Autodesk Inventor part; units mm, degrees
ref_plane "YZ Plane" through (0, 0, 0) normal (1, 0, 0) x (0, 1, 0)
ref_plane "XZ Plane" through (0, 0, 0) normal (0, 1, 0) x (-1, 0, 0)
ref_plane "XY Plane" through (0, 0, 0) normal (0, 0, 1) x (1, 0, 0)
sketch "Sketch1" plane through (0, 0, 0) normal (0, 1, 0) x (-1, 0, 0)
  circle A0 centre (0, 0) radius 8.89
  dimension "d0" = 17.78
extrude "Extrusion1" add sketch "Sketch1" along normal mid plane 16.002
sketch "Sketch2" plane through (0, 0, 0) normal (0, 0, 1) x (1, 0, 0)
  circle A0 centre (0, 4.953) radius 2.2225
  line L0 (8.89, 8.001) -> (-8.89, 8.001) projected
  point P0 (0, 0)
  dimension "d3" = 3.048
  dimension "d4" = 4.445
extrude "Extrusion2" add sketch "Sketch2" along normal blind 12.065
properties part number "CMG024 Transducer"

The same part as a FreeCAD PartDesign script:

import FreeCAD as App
import Part
import Sketcher
from FreeCAD import Vector
Q = App.Units.Quantity

doc = App.newDocument("Part")
params = doc.addObject("Spreadsheet::Sheet", "Params")
for row, (alias, value) in enumerate([
    ("sketch1_diameter", "0.7 in"),
    ("pad1_length", "0.63 in"),
    ("sketch2_diameter", "0.175 in"),
    ("pad2_length", "0.475 in"),
], start=1):
    params.set(f"A{row}", alias)
    params.set(f"B{row}", "=" + value)
    params.setAlias(f"B{row}", alias)

body = doc.addObject("PartDesign::Body", "Body")

sketch1 = body.newObject("Sketcher::SketchObject", "Sketch")
sketch1.AttachmentSupport = (doc.getObject("XZ_Plane"), [""])
sketch1.MapMode = "FlatFace"
sketch1.addGeometry(Part.Circle(Vector(0, 0, 0), Vector(0, 0, 1), 9), False)
sketch1.addConstraint([
    Sketcher.Constraint("Coincident", 0, 3, -1, 1),
    Sketcher.Constraint("Diameter", 0, Q("0.7 in")),
])
sketch1.setExpression("Constraints[1]", "Params.sketch1_diameter")
pad1 = body.newObject("PartDesign::Pad", "Pad")
pad1.Profile = sketch1
pad1.setExpression("Length", "Params.pad1_length")
pad1.Midplane = True

sketch2 = body.newObject("Sketcher::SketchObject", "Sketch001")
sketch2.AttachmentSupport = (doc.getObject("XY_Plane"), [""])
sketch2.MapMode = "FlatFace"
sketch2.addGeometry(Part.Circle(Vector(0, 5, 0), Vector(0, 0, 1), 2.2), False)
sketch2.addConstraint([
    Sketcher.Constraint("PointOnObject", 0, 3, -2),
    Sketcher.Constraint("Diameter", 0, Q("0.175 in")),
    Sketcher.Constraint("DistanceY", -1, 1, 0, 3, Q("0.195 in")),
])
sketch2.setExpression("Constraints[1]", "Params.sketch2_diameter")
pad2 = body.newObject("PartDesign::Pad", "Pad001")
pad2.Profile = sketch2
pad2.setExpression("Length", "Params.pad2_length")

doc.recompute()
